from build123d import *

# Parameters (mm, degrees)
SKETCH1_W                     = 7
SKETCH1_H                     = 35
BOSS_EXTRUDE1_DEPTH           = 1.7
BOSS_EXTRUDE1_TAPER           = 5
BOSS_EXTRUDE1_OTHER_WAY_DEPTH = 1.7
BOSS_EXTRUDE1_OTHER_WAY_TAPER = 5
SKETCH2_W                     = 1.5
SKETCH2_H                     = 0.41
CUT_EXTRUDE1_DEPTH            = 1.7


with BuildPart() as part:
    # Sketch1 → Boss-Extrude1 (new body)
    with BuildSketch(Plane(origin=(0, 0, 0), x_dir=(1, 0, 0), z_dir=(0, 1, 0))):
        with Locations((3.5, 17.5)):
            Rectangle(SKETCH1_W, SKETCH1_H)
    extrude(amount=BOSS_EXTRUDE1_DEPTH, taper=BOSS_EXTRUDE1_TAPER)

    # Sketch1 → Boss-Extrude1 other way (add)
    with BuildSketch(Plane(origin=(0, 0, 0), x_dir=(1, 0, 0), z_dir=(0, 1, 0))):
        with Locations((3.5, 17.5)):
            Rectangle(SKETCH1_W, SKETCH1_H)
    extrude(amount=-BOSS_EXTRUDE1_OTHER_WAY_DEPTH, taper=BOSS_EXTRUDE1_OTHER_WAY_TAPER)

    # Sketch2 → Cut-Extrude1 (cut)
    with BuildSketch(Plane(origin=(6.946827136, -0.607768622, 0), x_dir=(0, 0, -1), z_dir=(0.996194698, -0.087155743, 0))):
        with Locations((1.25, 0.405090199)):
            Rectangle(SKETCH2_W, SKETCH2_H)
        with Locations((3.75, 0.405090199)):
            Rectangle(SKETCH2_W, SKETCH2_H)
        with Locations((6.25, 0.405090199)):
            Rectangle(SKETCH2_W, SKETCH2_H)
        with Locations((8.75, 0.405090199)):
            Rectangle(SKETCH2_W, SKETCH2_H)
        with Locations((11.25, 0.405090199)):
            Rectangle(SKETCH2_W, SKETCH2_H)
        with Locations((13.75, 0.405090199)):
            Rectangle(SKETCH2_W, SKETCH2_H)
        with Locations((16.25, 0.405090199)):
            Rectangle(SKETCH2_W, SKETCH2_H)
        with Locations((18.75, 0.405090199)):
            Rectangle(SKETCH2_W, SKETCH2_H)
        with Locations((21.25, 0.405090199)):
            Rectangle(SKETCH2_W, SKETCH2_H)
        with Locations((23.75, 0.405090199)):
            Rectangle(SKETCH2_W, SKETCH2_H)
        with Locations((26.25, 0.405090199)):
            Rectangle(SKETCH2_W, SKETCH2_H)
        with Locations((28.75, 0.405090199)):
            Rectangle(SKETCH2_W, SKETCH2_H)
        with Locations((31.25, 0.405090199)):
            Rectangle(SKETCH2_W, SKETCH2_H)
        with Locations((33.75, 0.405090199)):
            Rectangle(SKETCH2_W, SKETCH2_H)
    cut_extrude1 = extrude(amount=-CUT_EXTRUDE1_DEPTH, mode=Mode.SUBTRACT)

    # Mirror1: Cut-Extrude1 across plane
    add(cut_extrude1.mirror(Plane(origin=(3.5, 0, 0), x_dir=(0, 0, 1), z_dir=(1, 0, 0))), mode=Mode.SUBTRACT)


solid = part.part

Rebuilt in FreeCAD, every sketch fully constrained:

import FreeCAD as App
import Part
import Sketcher


def add_polygon(sketch, points):
    """Adds a closed chain of lines whose ends are joined by coincident constraints."""
    first, n = sketch.GeometryCount, len(points)
    for a, b in zip(points, points[1:] + points[:1]):
        sketch.addGeometry(Part.LineSegment(App.Vector(*a, 0), App.Vector(*b, 0)), False)
    for i in range(n):
        sketch.addConstraint(Sketcher.Constraint("Coincident", first + i, 2, first + (i + 1) % n, 1))

doc = App.newDocument("Part")
body = doc.addObject("PartDesign::Body", "Body")

# Sketch on XZ plane
sketch1 = body.newObject("Sketcher::SketchObject", "Sketch")
sketch1.AttachmentSupport = (doc.getObject("XZ_Plane"), [""])
sketch1.MapMode = "FlatFace"
add_polygon(sketch1, [(0, -35), (0, 0), (7, 0), (7, -35)])  # lines 0-3
sketch1.addConstraint([
    Sketcher.Constraint("Vertical", 0),
    Sketcher.Constraint("Horizontal", 1),
    Sketcher.Constraint("Vertical", 2),
    Sketcher.Constraint("Horizontal", 3),
    Sketcher.Constraint("Coincident", 0, 2, -1, 1),
    Sketcher.Constraint("DistanceX", 1, 1, 1, 2, 7.0),
    Sketcher.Constraint("DistanceY", 0, 1, 0, 2, 35.0),
])
pad1 = body.newObject("PartDesign::Pad", "Pad")
pad1.Profile = sketch1
pad1.Length = 1.7
pad1.Reversed = True
pad1.TaperAngle = -5

# Sketch on XZ plane
sketch2 = body.newObject("Sketcher::SketchObject", "Sketch001")
sketch2.AttachmentSupport = (doc.getObject("XZ_Plane"), [""])
sketch2.MapMode = "FlatFace"
add_polygon(sketch2, [(0, -35), (0, 0), (7, 0), (7, -35)])  # lines 0-3
sketch2.addConstraint([
    Sketcher.Constraint("Vertical", 0),
    Sketcher.Constraint("Horizontal", 1),
    Sketcher.Constraint("Vertical", 2),
    Sketcher.Constraint("Horizontal", 3),
    Sketcher.Constraint("Coincident", 0, 2, -1, 1),
    Sketcher.Constraint("DistanceX", 1, 1, 1, 2, 7.0),
    Sketcher.Constraint("DistanceY", 0, 1, 0, 2, 35.0),
])
pad2 = body.newObject("PartDesign::Pad", "Pad001")
pad2.Profile = sketch2
pad2.Length = 1.7
pad2.TaperAngle = -5

# Sketch on an angled plane
sketch3 = body.newObject("Sketcher::SketchObject", "Sketch002")
sketch3.Placement = App.Placement(App.Vector(6.946827, -0.607769, 0), App.Rotation(App.Vector(0, 0, -1), App.Vector(0.087155743, 0.996194698, 0), App.Vector(0.996194698, -0.087155743, 0), "ZXY"))
add_polygon(sketch3, [(0.5, 0.61), (0.5, 0.2), (2, 0.2), (2, 0.61)])  # lines 0-3
add_polygon(sketch3, [(3, 0.61), (3, 0.2), (4.5, 0.2), (4.5, 0.61)])  # lines 4-7
add_polygon(sketch3, [(5.5, 0.61), (5.5, 0.2), (7, 0.2), (7, 0.61)])  # lines 8-11
add_polygon(sketch3, [(8, 0.61), (8, 0.2), (9.5, 0.2), (9.5, 0.61)])  # lines 12-15
add_polygon(sketch3, [(10.5, 0.61), (10.5, 0.2), (12, 0.2), (12, 0.61)])  # lines 16-19
add_polygon(sketch3, [(13, 0.61), (13, 0.2), (14.5, 0.2), (14.5, 0.61)])  # lines 20-23
add_polygon(sketch3, [(15.5, 0.61), (15.5, 0.2), (17, 0.2), (17, 0.61)])  # lines 24-27
add_polygon(sketch3, [(18, 0.61), (18, 0.2), (19.5, 0.2), (19.5, 0.61)])  # lines 28-31
add_polygon(sketch3, [(20.5, 0.61), (20.5, 0.2), (22, 0.2), (22, 0.61)])  # lines 32-35
add_polygon(sketch3, [(23, 0.61), (23, 0.2), (24.5, 0.2), (24.5, 0.61)])  # lines 36-39
add_polygon(sketch3, [(25.5, 0.61), (25.5, 0.2), (27, 0.2), (27, 0.61)])  # lines 40-43
add_polygon(sketch3, [(28, 0.61), (28, 0.2), (29.5, 0.2), (29.5, 0.61)])  # lines 44-47
add_polygon(sketch3, [(30.5, 0.61), (30.5, 0.2), (32, 0.2), (32, 0.61)])  # lines 48-51
add_polygon(sketch3, [(33, 0.61), (33, 0.2), (34.5, 0.2), (34.5, 0.61)])  # lines 52-55
sketch3.addConstraint([
    Sketcher.Constraint("Vertical", 0),
    Sketcher.Constraint("Horizontal", 1),
    Sketcher.Constraint("Vertical", 2),
    Sketcher.Constraint("Horizontal", 3),
    Sketcher.Constraint("Vertical", 4),
    Sketcher.Constraint("Horizontal", 5),
    Sketcher.Constraint("Vertical", 6),
    Sketcher.Constraint("Horizontal", 7),
    Sketcher.Constraint("Vertical", 8),
    Sketcher.Constraint("Horizontal", 9),
    Sketcher.Constraint("Vertical", 10),
    Sketcher.Constraint("Horizontal", 11),
    Sketcher.Constraint("Vertical", 12),
    Sketcher.Constraint("Horizontal", 13),
    Sketcher.Constraint("Vertical", 14),
    Sketcher.Constraint("Horizontal", 15),
    Sketcher.Constraint("Vertical", 16),
    Sketcher.Constraint("Horizontal", 17),
    Sketcher.Constraint("Vertical", 18),
    Sketcher.Constraint("Horizontal", 19),
    Sketcher.Constraint("Vertical", 20),
    Sketcher.Constraint("Horizontal", 21),
    Sketcher.Constraint("Vertical", 22),
    Sketcher.Constraint("Horizontal", 23),
    Sketcher.Constraint("Vertical", 24),
    Sketcher.Constraint("Horizontal", 25),
    Sketcher.Constraint("Vertical", 26),
    Sketcher.Constraint("Horizontal", 27),
    Sketcher.Constraint("Vertical", 28),
    Sketcher.Constraint("Horizontal", 29),
    Sketcher.Constraint("Vertical", 30),
    Sketcher.Constraint("Horizontal", 31),
    Sketcher.Constraint("Vertical", 32),
    Sketcher.Constraint("Horizontal", 33),
    Sketcher.Constraint("Vertical", 34),
    Sketcher.Constraint("Horizontal", 35),
    Sketcher.Constraint("Vertical", 36),
    Sketcher.Constraint("Horizontal", 37),
    Sketcher.Constraint("Vertical", 38),
    Sketcher.Constraint("Horizontal", 39),
    Sketcher.Constraint("Vertical", 40),
    Sketcher.Constraint("Horizontal", 41),
    Sketcher.Constraint("Vertical", 42),
    Sketcher.Constraint("Horizontal", 43),
    Sketcher.Constraint("Vertical", 44),
    Sketcher.Constraint("Horizontal", 45),
    Sketcher.Constraint("Vertical", 46),
    Sketcher.Constraint("Horizontal", 47),
    Sketcher.Constraint("Vertical", 48),
    Sketcher.Constraint("Horizontal", 49),
    Sketcher.Constraint("Vertical", 50),
    Sketcher.Constraint("Horizontal", 51),
    Sketcher.Constraint("Vertical", 52),
    Sketcher.Constraint("Horizontal", 53),
    Sketcher.Constraint("Vertical", 54),
    Sketcher.Constraint("Horizontal", 55),
    Sketcher.Constraint("Horizontal", 1, 2, 4, 2),
    Sketcher.Constraint("Horizontal", 3, 2, 6, 2),
    Sketcher.Constraint("Horizontal", 5, 2, 8, 2),
    Sketcher.Constraint("Horizontal", 7, 2, 10, 2),
    Sketcher.Constraint("Horizontal", 9, 2, 12, 2),
    Sketcher.Constraint("Horizontal", 11, 2, 14, 2),
    Sketcher.Constraint("Horizontal", 13, 2, 16, 2),
    Sketcher.Constraint("Horizontal", 15, 2, 18, 2),
    Sketcher.Constraint("Horizontal", 17, 2, 20, 2),
    Sketcher.Constraint("Horizontal", 19, 2, 22, 2),
    Sketcher.Constraint("Horizontal", 21, 2, 24, 2),
    Sketcher.Constraint("Horizontal", 23, 2, 26, 2),
    Sketcher.Constraint("Horizontal", 25, 2, 28, 2),
    Sketcher.Constraint("Horizontal", 27, 2, 30, 2),
    Sketcher.Constraint("Horizontal", 29, 2, 32, 2),
    Sketcher.Constraint("Horizontal", 31, 2, 34, 2),
    Sketcher.Constraint("Horizontal", 33, 2, 36, 2),
    Sketcher.Constraint("Horizontal", 35, 2, 38, 2),
    Sketcher.Constraint("Horizontal", 37, 2, 40, 2),
    Sketcher.Constraint("Horizontal", 39, 2, 42, 2),
    Sketcher.Constraint("Horizontal", 41, 2, 44, 2),
    Sketcher.Constraint("Horizontal", 43, 2, 46, 2),
    Sketcher.Constraint("Horizontal", 45, 2, 48, 2),
    Sketcher.Constraint("Horizontal", 47, 2, 50, 2),
    Sketcher.Constraint("Horizontal", 49, 2, 52, 2),
    Sketcher.Constraint("Horizontal", 51, 2, 54, 2),
    Sketcher.Constraint("Equal", 3, 5),
    Sketcher.Constraint("Equal", 7, 9),
    Sketcher.Constraint("Equal", 11, 13),
    Sketcher.Constraint("Equal", 15, 17),
    Sketcher.Constraint("Equal", 19, 21),
    Sketcher.Constraint("Equal", 23, 25),
    Sketcher.Constraint("Equal", 27, 29),
    Sketcher.Constraint("Equal", 31, 33),
    Sketcher.Constraint("Equal", 35, 37),
    Sketcher.Constraint("Equal", 39, 41),
    Sketcher.Constraint("Equal", 43, 45),
    Sketcher.Constraint("Equal", 47, 49),
    Sketcher.Constraint("Equal", 51, 53),
    Sketcher.Constraint("DistanceX", 1, 1, 1, 2, 1.5),
    Sketcher.Constraint("DistanceX", -1, 1, 1, 2, 2.0),
    Sketcher.Constraint("DistanceX", -1, 1, 4, 2, 3.0),
    Sketcher.Constraint("DistanceX", -1, 1, 9, 2, 7.0),
    Sketcher.Constraint("DistanceX", -1, 1, 12, 2, 8.0),
    Sketcher.Constraint("DistanceX", -1, 1, 17, 2, 12.0),
    Sketcher.Constraint("DistanceX", -1, 1, 20, 2, 13.0),
    Sketcher.Constraint("DistanceX", -1, 1, 25, 2, 17.0),
    Sketcher.Constraint("DistanceX", -1, 1, 28, 2, 18.0),
    Sketcher.Constraint("DistanceX", -1, 1, 33, 2, 22.0),
    Sketcher.Constraint("DistanceX", -1, 1, 36, 2, 23.0),
    Sketcher.Constraint("DistanceX", -1, 1, 41, 2, 27.0),
    Sketcher.Constraint("DistanceX", -1, 1, 44, 2, 28.0),
    Sketcher.Constraint("DistanceX", -1, 1, 49, 2, 32.0),
    Sketcher.Constraint("DistanceX", -1, 1, 52, 2, 33.0),
    Sketcher.Constraint("DistanceY", 0, 2, 0, 1, 0.41),
    Sketcher.Constraint("DistanceY", -1, 1, 0, 2, 0.20009),
])
pocket1 = body.newObject("PartDesign::Pocket", "Pocket")
pocket1.Profile = sketch3
pocket1.Length = 1.7
doc.recompute()

datumplane = body.newObject("PartDesign::Plane", "DatumPlane")
datumplane.AttachmentSupport = (doc.getObject("YZ_Plane"), [""])
datumplane.MapMode = "FlatFace"
datumplane.AttachmentOffset = App.Placement(App.Vector(0, 0, 3.5), App.Rotation())
mirrored = body.newObject("PartDesign::Mirrored", "Mirrored")
mirrored.Originals = [pocket1]
mirrored.MirrorPlane = (datumplane, [""])
body.Tip = mirrored

doc.recompute()
